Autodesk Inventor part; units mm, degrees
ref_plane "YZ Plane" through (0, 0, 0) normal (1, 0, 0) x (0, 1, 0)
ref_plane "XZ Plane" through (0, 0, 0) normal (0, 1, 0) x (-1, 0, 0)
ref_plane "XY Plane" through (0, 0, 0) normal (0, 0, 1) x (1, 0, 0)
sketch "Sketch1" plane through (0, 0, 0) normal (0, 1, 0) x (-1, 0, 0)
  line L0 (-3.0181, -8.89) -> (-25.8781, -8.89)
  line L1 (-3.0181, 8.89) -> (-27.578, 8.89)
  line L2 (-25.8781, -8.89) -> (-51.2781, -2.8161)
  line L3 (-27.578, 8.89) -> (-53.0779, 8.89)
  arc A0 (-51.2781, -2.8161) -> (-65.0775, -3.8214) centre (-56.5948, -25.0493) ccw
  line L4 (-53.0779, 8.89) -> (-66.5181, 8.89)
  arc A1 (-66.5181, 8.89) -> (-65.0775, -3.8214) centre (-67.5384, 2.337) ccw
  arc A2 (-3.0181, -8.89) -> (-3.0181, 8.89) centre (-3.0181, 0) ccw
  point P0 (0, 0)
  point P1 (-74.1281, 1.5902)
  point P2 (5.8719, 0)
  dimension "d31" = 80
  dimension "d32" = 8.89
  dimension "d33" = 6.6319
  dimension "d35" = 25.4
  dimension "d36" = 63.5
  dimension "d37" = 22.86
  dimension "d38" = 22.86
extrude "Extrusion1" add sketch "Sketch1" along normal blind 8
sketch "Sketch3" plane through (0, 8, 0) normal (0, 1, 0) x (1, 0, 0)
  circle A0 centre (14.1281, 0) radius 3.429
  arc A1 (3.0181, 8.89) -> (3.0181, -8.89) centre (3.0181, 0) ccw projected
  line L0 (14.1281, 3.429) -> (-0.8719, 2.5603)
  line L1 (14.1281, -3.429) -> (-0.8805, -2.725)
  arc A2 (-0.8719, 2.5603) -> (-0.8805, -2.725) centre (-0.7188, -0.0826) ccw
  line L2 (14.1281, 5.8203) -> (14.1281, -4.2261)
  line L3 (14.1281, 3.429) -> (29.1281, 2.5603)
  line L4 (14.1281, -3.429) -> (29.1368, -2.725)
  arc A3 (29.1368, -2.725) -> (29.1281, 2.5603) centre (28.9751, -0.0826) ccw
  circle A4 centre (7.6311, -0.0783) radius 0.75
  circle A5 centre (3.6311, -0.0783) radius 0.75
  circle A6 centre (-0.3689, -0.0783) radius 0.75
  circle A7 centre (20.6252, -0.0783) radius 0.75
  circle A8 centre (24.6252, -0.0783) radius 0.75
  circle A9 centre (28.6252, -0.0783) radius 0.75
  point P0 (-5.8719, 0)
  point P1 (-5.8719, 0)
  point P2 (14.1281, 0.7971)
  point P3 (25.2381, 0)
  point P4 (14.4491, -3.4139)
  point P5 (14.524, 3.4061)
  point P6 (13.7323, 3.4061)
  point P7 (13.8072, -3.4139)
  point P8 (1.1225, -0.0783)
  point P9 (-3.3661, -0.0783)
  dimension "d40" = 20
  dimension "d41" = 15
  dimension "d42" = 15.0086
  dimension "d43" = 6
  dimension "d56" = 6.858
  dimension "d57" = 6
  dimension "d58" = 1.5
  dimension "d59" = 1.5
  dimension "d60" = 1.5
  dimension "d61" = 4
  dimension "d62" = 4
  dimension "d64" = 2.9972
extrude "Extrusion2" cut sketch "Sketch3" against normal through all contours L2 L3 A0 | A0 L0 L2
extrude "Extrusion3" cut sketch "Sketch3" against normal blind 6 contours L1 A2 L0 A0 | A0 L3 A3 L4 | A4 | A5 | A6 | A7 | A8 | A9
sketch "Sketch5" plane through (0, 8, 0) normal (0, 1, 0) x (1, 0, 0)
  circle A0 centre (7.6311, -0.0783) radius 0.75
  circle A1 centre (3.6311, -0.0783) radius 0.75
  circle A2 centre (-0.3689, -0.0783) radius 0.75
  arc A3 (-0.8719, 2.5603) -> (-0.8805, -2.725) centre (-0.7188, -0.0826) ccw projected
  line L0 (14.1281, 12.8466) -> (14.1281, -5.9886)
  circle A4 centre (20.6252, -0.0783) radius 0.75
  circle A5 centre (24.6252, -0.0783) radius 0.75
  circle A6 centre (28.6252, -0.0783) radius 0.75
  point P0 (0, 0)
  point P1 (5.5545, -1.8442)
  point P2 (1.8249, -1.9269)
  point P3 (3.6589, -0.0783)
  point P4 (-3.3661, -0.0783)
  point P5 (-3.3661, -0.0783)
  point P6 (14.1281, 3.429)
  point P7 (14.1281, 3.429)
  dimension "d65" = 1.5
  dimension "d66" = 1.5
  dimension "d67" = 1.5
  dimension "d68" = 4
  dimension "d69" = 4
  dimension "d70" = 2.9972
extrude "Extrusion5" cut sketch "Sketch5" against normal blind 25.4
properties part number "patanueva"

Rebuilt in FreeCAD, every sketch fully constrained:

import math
import FreeCAD as App
import Part
import Sketcher
from FreeCAD import Vector
Q = App.Units.Quantity

doc = App.newDocument("Part")
body = doc.addObject("PartDesign::Body", "Body")

# Sketch on XZ plane
sketch1 = body.newObject("Sketcher::SketchObject", "Sketch")
sketch1.AttachmentSupport = (doc.getObject("XZ_Plane"), [""])
sketch1.MapMode = "FlatFace"
sketch1.addGeometry(Part.LineSegment(Vector(26, -9, 0), Vector(3, -9, 0)), False)
sketch1.addGeometry(Part.ArcOfCircle(Part.Circle(Vector(3, 0, 0), Vector(0, 0, 1), 9), math.radians(90), math.radians(270)), False)
sketch1.addGeometry(Part.LineSegment(Vector(3, 9, 0), Vector(67, 9, 0)), False)
sketch1.addGeometry(Part.ArcOfCircle(Part.Circle(Vector(68, 2, 0), Vector(0, 0, 1), 7), math.radians(-112), math.radians(99)), False)
sketch1.addGeometry(Part.ArcOfCircle(Part.Circle(Vector(57, -25, 0), Vector(0, 0, 1), 23), math.radians(68), math.radians(103)), False)
sketch1.addGeometry(Part.LineSegment(Vector(51, -3, 0), Vector(26, -9, 0)), False)
sketch1.addConstraint(Sketcher.Constraint("Tangent", 0, 2, 1, 2))
sketch1.addConstraint(Sketcher.Constraint("Tangent", 1, 1, 2, 1))
sketch1.addConstraint(Sketcher.Constraint("Coincident", 2, 2, 3, 2))
sketch1.addConstraint(Sketcher.Constraint("Tangent", 3, 1, 4, 1))
sketch1.addConstraint(Sketcher.Constraint("Tangent", 4, 2, 5, 1))
sketch1.addConstraint(Sketcher.Constraint("Coincident", 5, 2, 0, 1))
sketch1.addConstraint(Sketcher.Constraint("Horizontal", 0))
sketch1.addConstraint(Sketcher.Constraint("Horizontal", 2))
sketch1.addConstraint(Sketcher.Constraint("PointOnObject", 1, 3, -1))
sketch1.addConstraint(Sketcher.Constraint("Radius", 4, Q("0.9 in")))
sketch1.addConstraint(Sketcher.Constraint("Radius", 1, Q("0.35 in")))
sketch1.addConstraint(Sketcher.Constraint("DistanceX", 0, 2, 0, 1, Q("0.9 in")))
sketch1.addConstraint(Sketcher.Constraint("DistanceX", 2, 1, 2, 2, Q("2.5 in")))
sketch1.addConstraint(Sketcher.Constraint("DistanceX", 5, 2, 4, 2, Q("1 in")))
sketch1.addConstraint(Sketcher.Constraint("Radius", 3, Q("0.2611 in")))
sketch1.addConstraint(Sketcher.Constraint("DistanceX", -1, 1, 3, 3, Q("2.659 in")))
sketch1.addConstraint(Sketcher.Constraint("DistanceY", -1, 1, 3, 3, Q("0.092 in")))
pad1 = body.newObject("PartDesign::Pad", "Pad")
pad1.Profile = sketch1
pad1.Length = 8
pad1.Reversed = True

# Sketch on XZ plane
sketch2 = body.newObject("Sketcher::SketchObject", "Sketch001")
sketch2.AttachmentSupport = (doc.getObject("XZ_Plane"), [""])
sketch2.MapMode = "FlatFace"
sketch2.AttachmentOffset = App.Placement(Vector(0, 0, -8), App.Rotation())
sketch2.addGeometry(Part.LineSegment(Vector(14.52, -3.41, 0), Vector(14.13, -3.43, 0)), False)
sketch2.addGeometry(Part.LineSegment(Vector(14.13, -3.43, 0), Vector(13.73, -3.41, 0)), False)
sketch2.addGeometry(Part.ArcOfCircle(Part.Circle(Vector(14.13, 0, 0), Vector(0, 0, 1), 3.43), math.radians(-83), math.radians(263)), False)
sketch2.addConstraint(Sketcher.Constraint("Coincident", 0, 2, 1, 1))
sketch2.addConstraint(Sketcher.Constraint("Coincident", 1, 2, 2, 2))
sketch2.addConstraint(Sketcher.Constraint("Coincident", 2, 1, 0, 1))
sketch2.addConstraint(Sketcher.Constraint("PointOnObject", 2, 3, -1))
sketch2.addConstraint(Sketcher.Constraint("Horizontal", 1, 2, 2, 1))
sketch2.addConstraint(Sketcher.Constraint("Vertical", 2, 3, 0, 2))
sketch2.addConstraint(Sketcher.Constraint("Radius", 2, Q("0.135 in")))
sketch2.addConstraint(Sketcher.Constraint("DistanceY", 0, 2, -1, 1, Q("0.135 in")))
sketch2.addConstraint(Sketcher.Constraint("Distance", 0, Q("0.0156 in")))
sketch2.addConstraint(Sketcher.Constraint("DistanceX", -1, 1, 2, 1, Q("0.5718 in")))
pocket1 = body.newObject("PartDesign::Pocket", "Pocket")
pocket1.Profile = sketch2
pocket1.Type = "ThroughAll"
pocket1.Reversed = True

# Sketch on XZ plane
sketch3 = body.newObject("Sketcher::SketchObject", "Sketch002")
sketch3.AttachmentSupport = (doc.getObject("XZ_Plane"), [""])
sketch3.MapMode = "FlatFace"
sketch3.AttachmentOffset = App.Placement(Vector(0, 0, -8), App.Rotation())
sketch3.addGeometry(Part.LineSegment(Vector(-0.9, 2.7, 0), Vector(14.1, 3.4, 0)), False)
sketch3.addGeometry(Part.ArcOfCircle(Part.Circle(Vector(14.1, 0, 0), Vector(0, 0, 1), 3.4), math.radians(90), math.radians(263)), False)
sketch3.addGeometry(Part.LineSegment(Vector(13.7, -3.4, 0), Vector(-0.9, -2.6, 0)), False)
sketch3.addGeometry(Part.ArcOfCircle(Part.Circle(Vector(-0.7, 0.1, 0), Vector(0, 0, 1), 2.6), math.radians(94), math.radians(267)), False)
sketch3.addGeometry(Part.LineSegment(Vector(14.1, 3.4, 0), Vector(29.1, 2.7, 0)), False)
sketch3.addGeometry(Part.ArcOfCircle(Part.Circle(Vector(29, 0.1, 0), Vector(0, 0, 1), 2.6), math.radians(-87), math.radians(86)), False)
sketch3.addGeometry(Part.LineSegment(Vector(29.1, -2.6, 0), Vector(14.5, -3.4, 0)), False)
sketch3.addGeometry(Part.ArcOfCircle(Part.Circle(Vector(14.1, 0, 0), Vector(0, 0, 1), 3.4), math.radians(-83), math.radians(90)), False)
sketch3.addConstraint(Sketcher.Constraint("Coincident", 0, 2, 1, 1))
sketch3.addConstraint(Sketcher.Constraint("Coincident", 1, 2, 2, 1))
sketch3.addConstraint(Sketcher.Constraint("Tangent", 2, 2, 3, 2))
sketch3.addConstraint(Sketcher.Constraint("Coincident", 3, 1, 0, 1))
sketch3.addConstraint(Sketcher.Constraint("Coincident", 4, 2, 5, 2))
sketch3.addConstraint(Sketcher.Constraint("Tangent", 5, 1, 6, 1))
sketch3.addConstraint(Sketcher.Constraint("Coincident", 6, 2, 7, 1))
sketch3.addConstraint(Sketcher.Constraint("Coincident", 7, 2, 4, 1))
sketch3.addConstraint(Sketcher.Constraint("Coincident", 7, 3, 1, 3))
sketch3.addConstraint(Sketcher.Constraint("Coincident", 7, 2, 0, 2))
sketch3.addConstraint(Sketcher.Constraint("Equal", 3, 5))
sketch3.addConstraint(Sketcher.Constraint("PointOnObject", 1, 3, -1))
sketch3.addConstraint(Sketcher.Constraint("Horizontal", 3, 3, 5, 3))
sketch3.addConstraint(Sketcher.Constraint("Horizontal", 3, 1, 4, 2))
sketch3.addConstraint(Sketcher.Constraint("Horizontal", 1, 2, 6, 2))
sketch3.addConstraint(Sketcher.Constraint("Vertical", 7, 3, 0, 2))
sketch3.addConstraint(Sketcher.Constraint("Equal", 0, 4))
sketch3.addConstraint(Sketcher.Constraint("Radius", 1, Q("0.135 in")))
sketch3.addConstraint(Sketcher.Constraint("DistanceX", 3, 1, 0, 2, Q("0.5909 in")))
sketch3.addConstraint(Sketcher.Constraint("Radius", 3, Q("2.6473 mm")))
sketch3.addConstraint(Sketcher.Constraint("DistanceX", 2, 2, 1, 3, Q("15 mm")))
sketch3.addConstraint(Sketcher.Constraint("DistanceX", 3, 3, -1, 1, Q("0.0283 in")))
sketch3.addConstraint(Sketcher.Constraint("DistanceY", 1, 2, -1, 1, Q("0.1341 in")))
sketch3.addConstraint(Sketcher.Constraint("DistanceY", 2, 2, -1, 1, Q("0.1008 in")))
pocket2 = body.newObject("PartDesign::Pocket", "Pocket001")
pocket2.Profile = sketch3
pocket2.Length = 6
pocket2.Reversed = True

# Sketch on XZ plane
sketch4 = body.newObject("Sketcher::SketchObject", "Sketch003")
sketch4.AttachmentSupport = (doc.getObject("XZ_Plane"), [""])
sketch4.MapMode = "FlatFace"
sketch4.AttachmentOffset = App.Placement(Vector(0, 0, -8), App.Rotation())
sketch4.addGeometry(Part.Circle(Vector(7.6, 0.1, 0), Vector(0, 0, 1), 0.8), False)
sketch4.addGeometry(Part.Circle(Vector(3.6, 0.1, 0), Vector(0, 0, 1), 0.8), False)
sketch4.addGeometry(Part.Circle(Vector(-0.4, 0.1, 0), Vector(0, 0, 1), 0.8), False)
sketch4.addGeometry(Part.Circle(Vector(20.6, 0.1, 0), Vector(0, 0, 1), 0.8), False)
sketch4.addGeometry(Part.Circle(Vector(24.6, 0.1, 0), Vector(0, 0, 1), 0.8), False)
sketch4.addGeometry(Part.Circle(Vector(28.6, 0.1, 0), Vector(0, 0, 1), 0.8), False)
sketch4.addConstraint(Sketcher.Constraint("Equal", 0, 1))
sketch4.addConstraint(Sketcher.Constraint("Equal", 1, 2))
sketch4.addConstraint(Sketcher.Constraint("Equal", 2, 3))
sketch4.addConstraint(Sketcher.Constraint("Equal", 3, 4))
sketch4.addConstraint(Sketcher.Constraint("Equal", 4, 5))
sketch4.addConstraint(Sketcher.Constraint("Horizontal", 0, 3, 1, 3))
sketch4.addConstraint(Sketcher.Constraint("Horizontal", 1, 3, 2, 3))
sketch4.addConstraint(Sketcher.Constraint("Horizontal", 2, 3, 3, 3))
sketch4.addConstraint(Sketcher.Constraint("Horizontal", 3, 3, 4, 3))
sketch4.addConstraint(Sketcher.Constraint("Horizontal", 4, 3, 5, 3))
sketch4.addConstraint(Sketcher.Constraint("Diameter", 0, Q("1.5 mm")))
sketch4.addConstraint(Sketcher.Constraint("DistanceX", 1, 3, 0, 3, Q("4 mm")))
sketch4.addConstraint(Sketcher.Constraint("DistanceX", 2, 3, 1, 3, Q("4 mm")))
sketch4.addConstraint(Sketcher.Constraint("DistanceX", 3, 3, 4, 3, Q("4 mm")))
sketch4.addConstraint(Sketcher.Constraint("DistanceX", 4, 3, 5, 3, Q("4 mm")))
sketch4.addConstraint(Sketcher.Constraint("DistanceX", -1, 1, 4, 3, Q("0.9695 in")))
sketch4.addConstraint(Sketcher.Constraint("DistanceX", 2, 3, 5, 3, Q("1.1415 in")))
sketch4.addConstraint(Sketcher.Constraint("DistanceY", -1, 1, 0, 3, Q("0.0783 mm")))
pocket3 = body.newObject("PartDesign::Pocket", "Pocket002")
pocket3.Profile = sketch4
pocket3.Length = Q("1 in")
pocket3.Reversed = True

doc.recompute()
